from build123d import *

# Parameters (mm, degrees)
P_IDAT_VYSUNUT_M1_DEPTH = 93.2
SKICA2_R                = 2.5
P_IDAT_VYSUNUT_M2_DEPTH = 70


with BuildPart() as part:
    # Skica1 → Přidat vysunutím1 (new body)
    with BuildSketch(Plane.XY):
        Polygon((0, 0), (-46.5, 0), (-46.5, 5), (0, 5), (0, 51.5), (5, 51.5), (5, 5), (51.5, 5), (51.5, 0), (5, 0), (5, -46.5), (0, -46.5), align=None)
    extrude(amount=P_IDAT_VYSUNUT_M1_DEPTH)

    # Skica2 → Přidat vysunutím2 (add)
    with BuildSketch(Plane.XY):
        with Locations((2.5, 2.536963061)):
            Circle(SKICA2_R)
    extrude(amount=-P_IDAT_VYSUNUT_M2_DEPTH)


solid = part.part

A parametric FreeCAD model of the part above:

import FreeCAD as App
import Part
import Sketcher

V = App.Vector

doc = App.newDocument("Part")
body = doc.addObject("PartDesign::Body", "Body")

# Sketch on XY plane
sketch1 = doc.addObject("Sketcher::SketchObject", "Sketch")
body.addObject(sketch1)
sketch1.AttachmentSupport = (doc.XY_Plane, [""])
sketch1.MapMode = "FlatFace"
sketch1.addGeometry(Part.LineSegment(V(-46.5, 0, 0), V(0, 0, 0)), False)
sketch1.addGeometry(Part.LineSegment(V(0, 0, 0), V(0, -46.5, 0)), False)
sketch1.addGeometry(Part.LineSegment(V(0, -46.5, 0), V(5, -46.5, 0)), False)
sketch1.addGeometry(Part.LineSegment(V(5, -46.5, 0), V(5, 0, 0)), False)
sketch1.addGeometry(Part.LineSegment(V(5, 0, 0), V(51.5, 0, 0)), False)
sketch1.addGeometry(Part.LineSegment(V(51.5, 0, 0), V(51.5, 5, 0)), False)
sketch1.addGeometry(Part.LineSegment(V(51.5, 5, 0), V(5, 5, 0)), False)
sketch1.addGeometry(Part.LineSegment(V(5, 5, 0), V(5, 51.5, 0)), False)
sketch1.addGeometry(Part.LineSegment(V(5, 51.5, 0), V(0, 51.5, 0)), False)
sketch1.addGeometry(Part.LineSegment(V(0, 51.5, 0), V(0, 5, 0)), False)
sketch1.addGeometry(Part.LineSegment(V(0, 5, 0), V(-46.5, 5, 0)), False)
sketch1.addGeometry(Part.LineSegment(V(-46.5, 5, 0), V(-46.5, 0, 0)), False)
sketch1.addConstraint(Sketcher.Constraint("Coincident", 0, 2, 1, 1))
sketch1.addConstraint(Sketcher.Constraint("Coincident", 1, 2, 2, 1))
sketch1.addConstraint(Sketcher.Constraint("Coincident", 2, 2, 3, 1))
sketch1.addConstraint(Sketcher.Constraint("Coincident", 3, 2, 4, 1))
sketch1.addConstraint(Sketcher.Constraint("Coincident", 4, 2, 5, 1))
sketch1.addConstraint(Sketcher.Constraint("Coincident", 5, 2, 6, 1))
sketch1.addConstraint(Sketcher.Constraint("Coincident", 6, 2, 7, 1))
sketch1.addConstraint(Sketcher.Constraint("Coincident", 7, 2, 8, 1))
sketch1.addConstraint(Sketcher.Constraint("Coincident", 8, 2, 9, 1))
sketch1.addConstraint(Sketcher.Constraint("Coincident", 9, 2, 10, 1))
sketch1.addConstraint(Sketcher.Constraint("Coincident", 10, 2, 11, 1))
sketch1.addConstraint(Sketcher.Constraint("Coincident", 11, 2, 0, 1))
sketch1.addConstraint(Sketcher.Constraint("Horizontal", 0))
sketch1.addConstraint(Sketcher.Constraint("Vertical", 1))
sketch1.addConstraint(Sketcher.Constraint("Horizontal", 2))
sketch1.addConstraint(Sketcher.Constraint("Vertical", 3))
sketch1.addConstraint(Sketcher.Constraint("Horizontal", 4))
sketch1.addConstraint(Sketcher.Constraint("Vertical", 5))
sketch1.addConstraint(Sketcher.Constraint("Horizontal", 6))
sketch1.addConstraint(Sketcher.Constraint("Vertical", 7))
sketch1.addConstraint(Sketcher.Constraint("Horizontal", 8))
sketch1.addConstraint(Sketcher.Constraint("Vertical", 9))
sketch1.addConstraint(Sketcher.Constraint("Horizontal", 10))
sketch1.addConstraint(Sketcher.Constraint("Vertical", 11))
sketch1.addConstraint(Sketcher.Constraint("Coincident", 0, 2, -1, 1))
sketch1.addConstraint(Sketcher.Constraint("PointOnObject", 3, 2, -1))
sketch1.addConstraint(Sketcher.Constraint("PointOnObject", 8, 2, -2))
sketch1.addConstraint(Sketcher.Constraint("Horizontal", 6, 2, 9, 2))
sketch1.addConstraint(Sketcher.Constraint("Vertical", 3, 2, 6, 2))
sketch1.addConstraint(Sketcher.Constraint("Equal", 0, 4))
sketch1.addConstraint(Sketcher.Constraint("Equal", 10, 1))
sketch1.addConstraint(Sketcher.Constraint("Equal", 8, 5))
sketch1.addConstraint(Sketcher.Constraint("Equal", 3, 7))
sketch1.addConstraint(Sketcher.Constraint("DistanceX", 2, 1, 2, 2, 5.0))
sketch1.addConstraint(Sketcher.Constraint("DistanceX", 0, 1, 0, 2, 46.5))
pad1 = doc.addObject("PartDesign::Pad", "Pad")
body.addObject(pad1)
pad1.Profile = sketch1
pad1.Length = 93.2

# Sketch on XY plane
sketch2 = doc.addObject("Sketcher::SketchObject", "Sketch001")
body.addObject(sketch2)
sketch2.AttachmentSupport = (doc.XY_Plane, [""])
sketch2.MapMode = "FlatFace"
sketch2.addGeometry(Part.Circle(V(2.5, 2.536963, 0), V(0, 0, 1), 2.5), False)
sketch2.addConstraint(Sketcher.Constraint("Diameter", 0, 5.0))
sketch2.addConstraint(Sketcher.Constraint("DistanceX", -1, 1, 0, 3, 2.5))
sketch2.addConstraint(Sketcher.Constraint("DistanceY", -1, 1, 0, 3, 2.536963))
pad2 = doc.addObject("PartDesign::Pad", "Pad001")
body.addObject(pad2)
pad2.Profile = sketch2
pad2.Length = 70
pad2.Reversed = True

doc.recompute()
